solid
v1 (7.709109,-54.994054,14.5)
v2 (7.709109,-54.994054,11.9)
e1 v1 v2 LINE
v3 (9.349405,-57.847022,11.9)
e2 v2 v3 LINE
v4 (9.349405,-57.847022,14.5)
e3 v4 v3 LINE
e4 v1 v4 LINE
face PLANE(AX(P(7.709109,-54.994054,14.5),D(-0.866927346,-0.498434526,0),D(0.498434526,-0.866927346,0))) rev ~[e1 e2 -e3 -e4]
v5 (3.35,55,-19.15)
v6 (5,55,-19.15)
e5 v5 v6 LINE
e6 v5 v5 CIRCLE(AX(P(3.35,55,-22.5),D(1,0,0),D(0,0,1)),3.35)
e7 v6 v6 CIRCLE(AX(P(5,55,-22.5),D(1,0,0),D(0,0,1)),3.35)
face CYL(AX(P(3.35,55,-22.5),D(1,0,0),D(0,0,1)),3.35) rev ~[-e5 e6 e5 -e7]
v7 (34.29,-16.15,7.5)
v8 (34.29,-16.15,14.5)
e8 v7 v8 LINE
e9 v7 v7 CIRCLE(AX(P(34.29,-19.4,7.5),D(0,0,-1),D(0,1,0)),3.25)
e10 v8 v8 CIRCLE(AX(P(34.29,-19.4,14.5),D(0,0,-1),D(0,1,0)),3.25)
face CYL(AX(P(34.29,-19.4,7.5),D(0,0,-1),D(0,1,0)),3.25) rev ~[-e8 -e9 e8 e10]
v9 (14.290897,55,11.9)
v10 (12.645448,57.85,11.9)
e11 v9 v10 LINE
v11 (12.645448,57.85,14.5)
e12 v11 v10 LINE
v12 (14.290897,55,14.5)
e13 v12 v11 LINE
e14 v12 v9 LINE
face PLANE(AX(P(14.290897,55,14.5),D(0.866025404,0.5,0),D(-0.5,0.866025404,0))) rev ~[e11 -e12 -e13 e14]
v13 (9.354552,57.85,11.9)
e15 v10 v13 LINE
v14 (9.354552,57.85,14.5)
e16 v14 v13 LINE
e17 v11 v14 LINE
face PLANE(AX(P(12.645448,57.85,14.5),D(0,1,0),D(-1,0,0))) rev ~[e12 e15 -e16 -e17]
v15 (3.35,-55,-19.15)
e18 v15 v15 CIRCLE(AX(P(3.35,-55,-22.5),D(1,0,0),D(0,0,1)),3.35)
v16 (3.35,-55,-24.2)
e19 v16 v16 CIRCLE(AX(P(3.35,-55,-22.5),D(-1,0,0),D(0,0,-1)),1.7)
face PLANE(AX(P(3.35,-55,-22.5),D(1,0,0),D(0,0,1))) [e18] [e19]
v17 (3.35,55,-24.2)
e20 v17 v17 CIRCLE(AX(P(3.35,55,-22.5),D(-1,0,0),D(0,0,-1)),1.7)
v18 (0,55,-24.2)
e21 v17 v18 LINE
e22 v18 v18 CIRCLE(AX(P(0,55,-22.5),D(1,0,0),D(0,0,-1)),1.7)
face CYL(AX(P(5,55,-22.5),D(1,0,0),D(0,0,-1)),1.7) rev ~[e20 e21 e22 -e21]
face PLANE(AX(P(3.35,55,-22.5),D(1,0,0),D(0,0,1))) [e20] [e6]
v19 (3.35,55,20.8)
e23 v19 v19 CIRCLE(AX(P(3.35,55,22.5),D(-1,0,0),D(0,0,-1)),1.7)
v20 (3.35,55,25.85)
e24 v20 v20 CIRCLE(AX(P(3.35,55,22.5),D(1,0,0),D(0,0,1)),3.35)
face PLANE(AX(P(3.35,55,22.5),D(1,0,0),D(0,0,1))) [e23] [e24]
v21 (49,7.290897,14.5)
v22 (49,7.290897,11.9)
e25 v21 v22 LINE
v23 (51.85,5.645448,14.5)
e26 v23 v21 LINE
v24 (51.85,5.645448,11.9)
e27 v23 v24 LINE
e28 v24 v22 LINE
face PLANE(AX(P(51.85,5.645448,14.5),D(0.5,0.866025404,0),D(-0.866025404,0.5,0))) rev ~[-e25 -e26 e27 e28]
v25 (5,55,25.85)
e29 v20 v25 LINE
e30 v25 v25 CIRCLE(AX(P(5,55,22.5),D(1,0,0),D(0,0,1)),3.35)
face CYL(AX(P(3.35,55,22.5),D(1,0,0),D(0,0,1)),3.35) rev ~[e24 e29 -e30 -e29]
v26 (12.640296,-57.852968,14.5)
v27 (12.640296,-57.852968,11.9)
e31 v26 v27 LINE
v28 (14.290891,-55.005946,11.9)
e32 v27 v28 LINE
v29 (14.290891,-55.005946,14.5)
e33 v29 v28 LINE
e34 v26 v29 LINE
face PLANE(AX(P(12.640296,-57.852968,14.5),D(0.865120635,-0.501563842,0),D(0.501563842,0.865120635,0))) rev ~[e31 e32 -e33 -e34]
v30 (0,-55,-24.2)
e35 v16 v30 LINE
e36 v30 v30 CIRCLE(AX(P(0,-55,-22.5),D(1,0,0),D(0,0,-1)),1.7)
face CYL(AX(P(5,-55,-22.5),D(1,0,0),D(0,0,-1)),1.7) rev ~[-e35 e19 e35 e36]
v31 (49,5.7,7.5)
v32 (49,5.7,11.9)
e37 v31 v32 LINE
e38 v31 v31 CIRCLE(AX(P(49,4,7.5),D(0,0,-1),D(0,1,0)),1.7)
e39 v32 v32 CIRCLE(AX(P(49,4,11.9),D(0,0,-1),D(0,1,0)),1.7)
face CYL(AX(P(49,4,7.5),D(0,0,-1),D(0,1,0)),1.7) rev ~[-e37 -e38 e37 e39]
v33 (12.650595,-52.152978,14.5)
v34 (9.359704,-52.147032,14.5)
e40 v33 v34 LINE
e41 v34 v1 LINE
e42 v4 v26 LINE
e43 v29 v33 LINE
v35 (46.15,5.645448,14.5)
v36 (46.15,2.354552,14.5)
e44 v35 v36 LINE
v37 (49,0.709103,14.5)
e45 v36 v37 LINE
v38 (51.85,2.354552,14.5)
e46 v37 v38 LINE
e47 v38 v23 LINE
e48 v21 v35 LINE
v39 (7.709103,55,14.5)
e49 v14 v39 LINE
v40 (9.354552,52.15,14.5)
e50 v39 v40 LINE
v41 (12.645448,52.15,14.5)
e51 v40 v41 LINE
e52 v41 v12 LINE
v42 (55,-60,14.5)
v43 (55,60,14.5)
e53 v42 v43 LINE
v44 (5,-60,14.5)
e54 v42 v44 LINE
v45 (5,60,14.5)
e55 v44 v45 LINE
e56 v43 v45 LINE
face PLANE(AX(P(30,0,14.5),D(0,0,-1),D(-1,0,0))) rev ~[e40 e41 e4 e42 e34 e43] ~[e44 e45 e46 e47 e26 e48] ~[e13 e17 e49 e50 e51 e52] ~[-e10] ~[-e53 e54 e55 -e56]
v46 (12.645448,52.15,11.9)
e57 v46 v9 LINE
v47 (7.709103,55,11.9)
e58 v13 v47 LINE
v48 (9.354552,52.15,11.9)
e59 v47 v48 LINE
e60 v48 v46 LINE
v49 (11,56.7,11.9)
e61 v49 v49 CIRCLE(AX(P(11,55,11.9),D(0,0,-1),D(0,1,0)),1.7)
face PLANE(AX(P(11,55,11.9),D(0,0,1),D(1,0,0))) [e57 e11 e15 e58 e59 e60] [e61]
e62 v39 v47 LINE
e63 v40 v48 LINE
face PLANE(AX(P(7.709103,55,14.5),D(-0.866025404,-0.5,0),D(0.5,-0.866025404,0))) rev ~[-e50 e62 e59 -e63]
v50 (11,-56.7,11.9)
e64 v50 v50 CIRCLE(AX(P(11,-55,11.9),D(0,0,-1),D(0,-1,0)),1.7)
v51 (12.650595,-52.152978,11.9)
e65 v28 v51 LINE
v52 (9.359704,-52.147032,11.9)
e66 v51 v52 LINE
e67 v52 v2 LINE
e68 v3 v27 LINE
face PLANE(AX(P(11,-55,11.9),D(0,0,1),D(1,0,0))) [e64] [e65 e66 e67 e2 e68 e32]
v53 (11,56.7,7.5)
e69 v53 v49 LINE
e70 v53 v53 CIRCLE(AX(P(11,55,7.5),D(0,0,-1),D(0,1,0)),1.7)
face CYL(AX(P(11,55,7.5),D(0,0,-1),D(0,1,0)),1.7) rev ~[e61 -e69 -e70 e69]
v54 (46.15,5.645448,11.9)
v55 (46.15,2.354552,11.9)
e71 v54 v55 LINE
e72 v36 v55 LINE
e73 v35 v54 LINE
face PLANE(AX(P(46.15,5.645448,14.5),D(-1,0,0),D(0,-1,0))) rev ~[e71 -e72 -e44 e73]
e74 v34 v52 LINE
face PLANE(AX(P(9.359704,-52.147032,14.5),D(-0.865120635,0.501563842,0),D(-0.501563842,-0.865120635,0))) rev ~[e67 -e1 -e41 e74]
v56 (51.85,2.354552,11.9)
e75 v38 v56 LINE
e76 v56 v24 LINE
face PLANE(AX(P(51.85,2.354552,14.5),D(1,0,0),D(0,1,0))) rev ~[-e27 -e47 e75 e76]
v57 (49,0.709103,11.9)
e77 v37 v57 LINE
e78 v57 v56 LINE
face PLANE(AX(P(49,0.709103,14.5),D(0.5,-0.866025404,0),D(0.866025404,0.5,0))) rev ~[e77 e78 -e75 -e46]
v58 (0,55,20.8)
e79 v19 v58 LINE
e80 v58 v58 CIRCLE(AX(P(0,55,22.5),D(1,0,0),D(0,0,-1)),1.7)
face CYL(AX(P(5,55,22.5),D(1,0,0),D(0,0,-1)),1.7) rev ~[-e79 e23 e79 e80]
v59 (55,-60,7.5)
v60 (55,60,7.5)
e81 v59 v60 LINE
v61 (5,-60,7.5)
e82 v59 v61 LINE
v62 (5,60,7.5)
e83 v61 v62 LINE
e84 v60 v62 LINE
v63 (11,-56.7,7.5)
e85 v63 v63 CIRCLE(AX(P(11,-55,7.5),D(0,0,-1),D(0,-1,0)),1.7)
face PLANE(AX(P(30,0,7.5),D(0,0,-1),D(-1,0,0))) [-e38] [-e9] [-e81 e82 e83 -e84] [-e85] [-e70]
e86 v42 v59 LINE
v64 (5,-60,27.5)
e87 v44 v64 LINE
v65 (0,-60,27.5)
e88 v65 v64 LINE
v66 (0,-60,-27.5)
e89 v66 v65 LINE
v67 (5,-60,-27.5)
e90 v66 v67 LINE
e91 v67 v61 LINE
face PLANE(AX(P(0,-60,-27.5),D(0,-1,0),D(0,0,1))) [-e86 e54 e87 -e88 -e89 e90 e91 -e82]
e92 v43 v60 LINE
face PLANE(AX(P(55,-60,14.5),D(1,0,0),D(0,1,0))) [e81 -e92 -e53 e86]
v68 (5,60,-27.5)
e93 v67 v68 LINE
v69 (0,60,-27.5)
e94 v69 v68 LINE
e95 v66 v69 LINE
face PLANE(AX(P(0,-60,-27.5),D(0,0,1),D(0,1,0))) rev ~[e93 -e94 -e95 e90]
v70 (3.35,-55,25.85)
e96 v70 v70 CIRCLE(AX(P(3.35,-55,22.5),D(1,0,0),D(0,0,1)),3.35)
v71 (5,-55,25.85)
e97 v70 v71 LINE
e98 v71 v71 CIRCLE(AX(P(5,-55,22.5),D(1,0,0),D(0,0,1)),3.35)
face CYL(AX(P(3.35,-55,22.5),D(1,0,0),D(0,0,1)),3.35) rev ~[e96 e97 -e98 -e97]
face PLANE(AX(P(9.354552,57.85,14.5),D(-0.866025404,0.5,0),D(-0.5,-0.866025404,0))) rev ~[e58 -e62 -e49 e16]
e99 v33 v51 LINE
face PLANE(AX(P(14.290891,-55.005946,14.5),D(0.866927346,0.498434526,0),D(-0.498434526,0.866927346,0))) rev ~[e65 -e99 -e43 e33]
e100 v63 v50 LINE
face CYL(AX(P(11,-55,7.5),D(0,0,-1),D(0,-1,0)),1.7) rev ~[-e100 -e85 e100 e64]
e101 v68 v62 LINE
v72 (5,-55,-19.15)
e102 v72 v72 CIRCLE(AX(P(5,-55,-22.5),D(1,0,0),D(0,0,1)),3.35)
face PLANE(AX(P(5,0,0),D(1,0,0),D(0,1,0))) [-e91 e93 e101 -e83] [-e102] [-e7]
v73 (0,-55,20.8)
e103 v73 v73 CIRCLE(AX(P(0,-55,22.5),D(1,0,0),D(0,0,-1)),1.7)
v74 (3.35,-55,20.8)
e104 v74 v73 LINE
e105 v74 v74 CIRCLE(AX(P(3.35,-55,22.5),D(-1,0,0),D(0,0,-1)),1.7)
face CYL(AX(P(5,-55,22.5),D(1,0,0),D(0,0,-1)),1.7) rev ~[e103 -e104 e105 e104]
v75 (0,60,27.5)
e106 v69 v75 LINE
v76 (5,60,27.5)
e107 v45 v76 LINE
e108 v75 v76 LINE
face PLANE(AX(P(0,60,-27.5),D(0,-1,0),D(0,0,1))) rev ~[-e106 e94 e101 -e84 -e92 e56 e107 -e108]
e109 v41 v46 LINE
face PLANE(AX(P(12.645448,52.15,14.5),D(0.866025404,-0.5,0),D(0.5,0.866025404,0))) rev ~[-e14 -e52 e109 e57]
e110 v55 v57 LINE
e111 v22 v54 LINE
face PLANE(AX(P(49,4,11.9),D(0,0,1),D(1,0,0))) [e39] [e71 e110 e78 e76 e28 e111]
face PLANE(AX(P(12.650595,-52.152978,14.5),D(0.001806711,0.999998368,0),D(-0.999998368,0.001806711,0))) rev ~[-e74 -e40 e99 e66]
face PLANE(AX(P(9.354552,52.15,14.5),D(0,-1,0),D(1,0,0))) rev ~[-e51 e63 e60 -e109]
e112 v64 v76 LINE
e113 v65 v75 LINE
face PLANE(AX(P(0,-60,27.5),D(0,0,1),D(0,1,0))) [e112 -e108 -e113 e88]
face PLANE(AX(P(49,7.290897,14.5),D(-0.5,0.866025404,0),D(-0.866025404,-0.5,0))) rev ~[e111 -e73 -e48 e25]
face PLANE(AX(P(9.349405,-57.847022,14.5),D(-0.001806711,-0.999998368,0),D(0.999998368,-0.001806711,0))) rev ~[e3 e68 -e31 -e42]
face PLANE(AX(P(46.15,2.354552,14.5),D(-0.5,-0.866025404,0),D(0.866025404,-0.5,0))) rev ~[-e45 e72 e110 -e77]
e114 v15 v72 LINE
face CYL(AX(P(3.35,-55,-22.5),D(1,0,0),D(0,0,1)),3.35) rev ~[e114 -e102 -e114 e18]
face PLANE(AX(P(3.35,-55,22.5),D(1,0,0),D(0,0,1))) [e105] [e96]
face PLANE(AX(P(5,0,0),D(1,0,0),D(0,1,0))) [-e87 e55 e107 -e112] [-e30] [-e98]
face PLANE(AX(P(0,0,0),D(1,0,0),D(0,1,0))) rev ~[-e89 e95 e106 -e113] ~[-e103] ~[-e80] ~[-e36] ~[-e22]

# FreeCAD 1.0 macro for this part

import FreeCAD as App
import Part
import Sketcher
from FreeCAD import Vector
Q = App.Units.Quantity


def add_polygon(sketch, points):
    """Adds a closed chain of lines whose ends are joined by coincident constraints."""
    first, n = sketch.GeometryCount, len(points)
    for a, b in zip(points, points[1:] + points[:1]):
        sketch.addGeometry(Part.LineSegment(App.Vector(*a, 0), App.Vector(*b, 0)), False)
    for i in range(n):
        sketch.addConstraint(Sketcher.Constraint("Coincident", first + i, 2, first + (i + 1) % n, 1))

doc = App.newDocument("Part")
body = doc.addObject("PartDesign::Body", "Body")

# Sketch on YZ plane
sketch1 = doc.addObject("Sketcher::SketchObject", "Sketch")
body.addObject(sketch1)
sketch1.AttachmentSupport = (doc.YZ_Plane, [""])
sketch1.MapMode = "FlatFace"
add_polygon(sketch1, [(-60, 28), (-60, -28), (60, -28), (60, 28)])  # lines 0-3
sketch1.addConstraint([
    Sketcher.Constraint("Vertical", 0),
    Sketcher.Constraint("Horizontal", 1),
    Sketcher.Constraint("Vertical", 2),
    Sketcher.Constraint("Horizontal", 3),
    Sketcher.Constraint("Symmetric", 0, 2, 2, 2, -1, 1),
    Sketcher.Constraint("DistanceX", 1, 1, 1, 2, Q("120 mm")),
    Sketcher.Constraint("DistanceY", 0, 2, 0, 1, Q("55 mm")),
])
pad1 = doc.addObject("PartDesign::Pad", "Pad")
body.addObject(pad1)
pad1.Profile = sketch1
pad1.Length = 5

# Sketch on XY plane
sketch2 = doc.addObject("Sketcher::SketchObject", "Sketch001")
body.addObject(sketch2)
sketch2.AttachmentSupport = (doc.XY_Plane, [""])
sketch2.MapMode = "FlatFace"
sketch2.AttachmentOffset = App.Placement(Vector(0, 0, 12.5), App.Rotation())
add_polygon(sketch2, [(55, 60), (55, -60), (5, -60), (5, 60)])  # lines 0-3
sketch2.addConstraint([
    Sketcher.Constraint("Vertical", 0),
    Sketcher.Constraint("Horizontal", 1),
    Sketcher.Constraint("Vertical", 2),
    Sketcher.Constraint("Horizontal", 3),
    Sketcher.Constraint("DistanceX", 1, 2, 1, 1, Q("50 mm")),
    Sketcher.Constraint("DistanceY", 0, 2, 0, 1, Q("120 mm")),
    Sketcher.Constraint("DistanceX", -1, 1, 0, 2, Q("55 mm")),
    Sketcher.Constraint("DistanceY", 0, 2, -1, 1, Q("60 mm")),
])
pad2 = doc.addObject("PartDesign::Pad", "Pad001")
body.addObject(pad2)
pad2.Profile = sketch2
pad2.Type = "TwoLengths"
pad2.Length = 5
pad2.Length2 = 2
pad2.Reversed = True

# Sketch on YZ plane
sketch3 = doc.addObject("Sketcher::SketchObject", "Sketch002")
body.addObject(sketch3)
sketch3.AttachmentSupport = (doc.YZ_Plane, [""])
sketch3.MapMode = "FlatFace"
sketch3.AttachmentOffset = App.Placement(Vector(0, 0, 5), App.Rotation())
sketch3.addGeometry([
    Part.Circle(Vector(-55, 22.5, 0), Vector(0, 0, 1), 1.7),
    Part.Circle(Vector(-55, -22.5, 0), Vector(0, 0, 1), 1.7),
    Part.Circle(Vector(55, 22.5, 0), Vector(0, 0, 1), 1.7),
    Part.Circle(Vector(55, -22.5, 0), Vector(0, 0, 1), 1.7),
], False)
sketch3.addConstraint([
    Sketcher.Constraint("Equal", 0, 1),
    Sketcher.Constraint("Equal", 1, 2),
    Sketcher.Constraint("Equal", 2, 3),
    Sketcher.Constraint("Symmetric", 1, 3, 2, 3, -1, 1),
    Sketcher.Constraint("Symmetric", 0, 3, 3, 3, -1, 1),
    Sketcher.Constraint("Symmetric", 0, 3, 2, 3, -2),
    Sketcher.Constraint("Diameter", 0, Q("3.4 mm")),
    Sketcher.Constraint("DistanceX", 0, 3, -1, 1, Q("55 mm")),
    Sketcher.Constraint("DistanceY", 1, 3, 0, 3, Q("45 mm")),
])
pocket1 = doc.addObject("PartDesign::Pocket", "Pocket")
body.addObject(pocket1)
pocket1.Profile = sketch3
pocket1.Length = 5

# Sketch on YZ plane
sketch4 = doc.addObject("Sketcher::SketchObject", "Sketch003")
body.addObject(sketch4)
sketch4.AttachmentSupport = (doc.YZ_Plane, [""])
sketch4.MapMode = "FlatFace"
sketch4.AttachmentOffset = App.Placement(Vector(0, 0, 5), App.Rotation())
sketch4.addGeometry(Part.Circle(Vector(55, -22.5, 0), Vector(0, 0, 1), 1.7), False)
sketch4.addConstraint([
    Sketcher.Constraint("Diameter", 0, Q("3.4 mm")),
    Sketcher.Constraint("DistanceX", -1, 1, 0, 3, Q("55 mm")),
    Sketcher.Constraint("DistanceY", 0, 3, -1, 1, Q("22.5 mm")),
])
doc.recompute()
hole = doc.addObject("PartDesign::Hole", "Hole")
body.addObject(hole)
hole.Profile = sketch4
hole.ThreadType = "None"
hole.Diameter = 3.4
hole.DepthType = "Dimension"
hole.Depth = 3.15
hole.DrillPoint = "Angled"
hole.DrillPointAngle = 118
hole.HoleCutType = "Counterbore"
hole.HoleCutDiameter = 6.7
hole.HoleCutDepth = 1.65

# Sketch on YZ plane
sketch5 = doc.addObject("Sketcher::SketchObject", "Sketch004")
body.addObject(sketch5)
sketch5.AttachmentSupport = (doc.YZ_Plane, [""])
sketch5.MapMode = "FlatFace"
sketch5.AttachmentOffset = App.Placement(Vector(0, 0, 5), App.Rotation())
sketch5.addGeometry(Part.Circle(Vector(55, 22.5, 0), Vector(0, 0, 1), 1.7), False)
sketch5.addConstraint([
    Sketcher.Constraint("Diameter", 0, Q("3.4 mm")),
    Sketcher.Constraint("DistanceX", -1, 1, 0, 3, Q("55 mm")),
    Sketcher.Constraint("DistanceY", -1, 1, 0, 3, Q("22.5 mm")),
])
doc.recompute()
hole2 = doc.addObject("PartDesign::Hole", "Hole001")
body.addObject(hole2)
hole2.Profile = sketch5
hole2.ThreadType = "None"
hole2.Diameter = 3.4
hole2.DepthType = "Dimension"
hole2.Depth = 3.15
hole2.DrillPoint = "Angled"
hole2.DrillPointAngle = 118
hole2.HoleCutType = "Counterbore"
hole2.HoleCutDiameter = 6.7
hole2.HoleCutDepth = 1.65

# Sketch on YZ plane
sketch6 = doc.addObject("Sketcher::SketchObject", "Sketch005")
body.addObject(sketch6)
sketch6.AttachmentSupport = (doc.YZ_Plane, [""])
sketch6.MapMode = "FlatFace"
sketch6.AttachmentOffset = App.Placement(Vector(0, 0, 5), App.Rotation())
sketch6.addGeometry(Part.Circle(Vector(-55, -22.5, 0), Vector(0, 0, 1), 1.7), False)
sketch6.addConstraint([
    Sketcher.Constraint("Diameter", 0, Q("3.4 mm")),
    Sketcher.Constraint("DistanceX", 0, 3, -1, 1, Q("55 mm")),
    Sketcher.Constraint("DistanceY", 0, 3, -1, 1, Q("22.5 mm")),
])
doc.recompute()
hole3 = doc.addObject("PartDesign::Hole", "Hole002")
body.addObject(hole3)
hole3.Profile = sketch6
hole3.ThreadType = "None"
hole3.Diameter = 3.4
hole3.DepthType = "Dimension"
hole3.Depth = 3.15
hole3.DrillPoint = "Angled"
hole3.DrillPointAngle = 118
hole3.HoleCutType = "Counterbore"
hole3.HoleCutDiameter = 6.7
hole3.HoleCutDepth = 1.65

# Sketch on YZ plane
sketch7 = doc.addObject("Sketcher::SketchObject", "Sketch006")
body.addObject(sketch7)
sketch7.AttachmentSupport = (doc.YZ_Plane, [""])
sketch7.MapMode = "FlatFace"
sketch7.AttachmentOffset = App.Placement(Vector(0, 0, 5), App.Rotation())
sketch7.addGeometry(Part.Circle(Vector(-55, 22.5, 0), Vector(0, 0, 1), 1.7), False)
sketch7.addConstraint([
    Sketcher.Constraint("Diameter", 0, Q("3.4 mm")),
    Sketcher.Constraint("DistanceX", 0, 3, -1, 1, Q("55 mm")),
    Sketcher.Constraint("DistanceY", -1, 1, 0, 3, Q("22.5 mm")),
])
doc.recompute()
hole4 = doc.addObject("PartDesign::Hole", "Hole003")
body.addObject(hole4)
hole4.Profile = sketch7
hole4.ThreadType = "None"
hole4.Diameter = 3.4
hole4.DepthType = "Dimension"
hole4.Depth = 3.15
hole4.DrillPoint = "Angled"
hole4.DrillPointAngle = 118
hole4.HoleCutType = "Counterbore"
hole4.HoleCutDiameter = 6.7
hole4.HoleCutDepth = 1.65

# Sketch on XY plane
sketch8 = doc.addObject("Sketcher::SketchObject", "Sketch007")
body.addObject(sketch8)
sketch8.AttachmentSupport = (doc.XY_Plane, [""])
sketch8.MapMode = "FlatFace"
sketch8.AttachmentOffset = App.Placement(Vector(0, 0, 7.5), App.Rotation())
sketch8.addGeometry(Part.Circle(Vector(34.3, -19.4, 0), Vector(0, 0, 1), 3.2), False)
sketch8.addConstraint([
    Sketcher.Constraint("Diameter", 0, Q("6.5 mm")),
    Sketcher.Constraint("DistanceY", 0, 3, -1, 1, Q("19.4 mm")),
    Sketcher.Constraint("DistanceX", -1, 1, 0, 3, Q("34.29 mm")),
])
pocket2 = doc.addObject("PartDesign::Pocket", "Pocket001")
body.addObject(pocket2)
pocket2.Profile = sketch8
pocket2.Length = 7
pocket2.Reversed = True

# Sketch on XY plane
sketch9 = doc.addObject("Sketcher::SketchObject", "Sketch008")
body.addObject(sketch9)
sketch9.AttachmentSupport = (doc.XY_Plane, [""])
sketch9.MapMode = "FlatFace"
sketch9.AttachmentOffset = App.Placement(Vector(0, 0, 7.5), App.Rotation())
sketch9.addGeometry([
    Part.Circle(Vector(11, 55, 0), Vector(0, 0, 1), 1.7),
    Part.Circle(Vector(11, -55, 0), Vector(0, 0, 1), 1.7),
], False)
sketch9.addConstraint([
    Sketcher.Constraint("Equal", 0, 1),
    Sketcher.Constraint("Symmetric", 0, 3, 1, 3, -1),
    Sketcher.Constraint("Diameter", 0, Q("3.4 mm")),
    Sketcher.Constraint("DistanceX", -1, 1, 0, 3, Q("11 mm")),
    Sketcher.Constraint("DistanceY", -1, 1, 0, 3, Q("55 mm")),
])
pocket3 = doc.addObject("PartDesign::Pocket", "Pocket002")
body.addObject(pocket3)
pocket3.Profile = sketch9
pocket3.Length = 7
pocket3.Reversed = True

# Sketch on XY plane
sketch10 = doc.addObject("Sketcher::SketchObject", "Sketch009")
body.addObject(sketch10)
sketch10.AttachmentSupport = (doc.XY_Plane, [""])
sketch10.MapMode = "FlatFace"
sketch10.AttachmentOffset = App.Placement(Vector(0, 0, 7.5), App.Rotation())
sketch10.addGeometry(Part.Circle(Vector(49, 4, 0), Vector(0, 0, 1), 1.7), False)
sketch10.addConstraint([
    Sketcher.Constraint("Diameter", 0, Q("3.4 mm")),
    Sketcher.Constraint("DistanceX", -1, 1, 0, 3, Q("49 mm")),
    Sketcher.Constraint("DistanceY", -1, 1, 0, 3, Q("4 mm")),
])
pocket4 = doc.addObject("PartDesign::Pocket", "Pocket003")
body.addObject(pocket4)
pocket4.Profile = sketch10
pocket4.Length = 7
pocket4.Reversed = True

# Sketch on XY plane
sketch11 = doc.addObject("Sketcher::SketchObject", "Sketch010")
body.addObject(sketch11)
sketch11.AttachmentSupport = (doc.XY_Plane, [""])
sketch11.MapMode = "FlatFace"
sketch11.AttachmentOffset = App.Placement(Vector(0, 0, 14.5), App.Rotation())
add_polygon(sketch11, [(7.7, 55), (9.4, 52.1), (12.6, 52.1), (14.3, 55), (12.6, 57.9), (9.4, 57.9)])  # lines 0-5
add_polygon(sketch11, [(46.1, 2.4), (49, 0.7), (51.9, 2.4), (51.9, 5.6), (49, 7.3), (46.1, 5.6)])  # lines 6-11
add_polygon(sketch11, [(7.7, -55), (9.3, -57.8), (12.6, -57.9), (14.3, -55), (12.7, -52.2), (9.4, -52.1)])  # lines 12-17
sketch11.addConstraint([
    Sketcher.Constraint("Horizontal", 1),
    Sketcher.Constraint("Horizontal", 4),
    Sketcher.Constraint("Vertical", 8),
    Sketcher.Constraint("Vertical", 11),
    Sketcher.Constraint("Parallel", 0, 3),
    Sketcher.Constraint("Parallel", 2, 5),
    Sketcher.Constraint("Perpendicular", 5, 6),
    Sketcher.Constraint("Perpendicular", 3, 7),
    Sketcher.Constraint("Parallel", 6, 9),
    Sketcher.Constraint("Parallel", 7, 10),
    Sketcher.Constraint("Parallel", 12, 15),
    Sketcher.Constraint("Parallel", 13, 16),
    Sketcher.Constraint("Parallel", 14, 17),
    Sketcher.Constraint("Horizontal", 2, 2, 5, 2),
    Sketcher.Constraint("Horizontal", 8, 2, 10, 2),
    Sketcher.Constraint("Horizontal", 7, 2, 11, 2),
    Sketcher.Constraint("Vertical", 1, 2, 3, 2),
    Sketcher.Constraint("Vertical", 0, 2, 4, 2),
    Sketcher.Constraint("Equal", 4, 8),
    Sketcher.Constraint("Equal", 5, 6),
    Sketcher.Constraint("Equal", 10, 12),
    Sketcher.Constraint("Equal", 12, 13),
    Sketcher.Constraint("Equal", 13, 14),
    Sketcher.Constraint("Equal", 14, 15),
    Sketcher.Constraint("Angle", 0, Q("-60 deg")),
    Sketcher.Constraint("DistanceY", -1, 1, 2, 2, Q("55 mm")),
    Sketcher.Constraint("DistanceX", -1, 1, 6, 2, Q("49 mm")),
    Sketcher.Constraint("DistanceY", 1, 2, 3, 2, Q("5.7 mm")),
    Sketcher.Constraint("DistanceX", 13, 2, 15, 2, Q("0.010298 mm")),
    Sketcher.Constraint("DistanceX", 1, 1, 1, 2, Q("3.290897 mm")),
    Sketcher.Constraint("DistanceX", -1, 1, 0, 2, Q("9.354552 mm")),
    Sketcher.Constraint("DistanceY", -1, 1, 7, 2, Q("2.354552 mm")),
    Sketcher.Constraint("DistanceY", 13, 2, -1, 1, Q("57.852968 mm")),
    Sketcher.Constraint("DistanceX", -1, 1, 14, 2, Q("14.290891 mm")),
    Sketcher.Constraint("DistanceY", 16, 2, -1, 1, Q("52.147032 mm")),
    Sketcher.Constraint("DistanceX", -1, 1, 17, 2, Q("7.709109 mm")),
])
pocket5 = doc.addObject("PartDesign::Pocket", "Pocket004")
body.addObject(pocket5)
pocket5.Profile = sketch11
pocket5.Length = 2.6

doc.recompute()
